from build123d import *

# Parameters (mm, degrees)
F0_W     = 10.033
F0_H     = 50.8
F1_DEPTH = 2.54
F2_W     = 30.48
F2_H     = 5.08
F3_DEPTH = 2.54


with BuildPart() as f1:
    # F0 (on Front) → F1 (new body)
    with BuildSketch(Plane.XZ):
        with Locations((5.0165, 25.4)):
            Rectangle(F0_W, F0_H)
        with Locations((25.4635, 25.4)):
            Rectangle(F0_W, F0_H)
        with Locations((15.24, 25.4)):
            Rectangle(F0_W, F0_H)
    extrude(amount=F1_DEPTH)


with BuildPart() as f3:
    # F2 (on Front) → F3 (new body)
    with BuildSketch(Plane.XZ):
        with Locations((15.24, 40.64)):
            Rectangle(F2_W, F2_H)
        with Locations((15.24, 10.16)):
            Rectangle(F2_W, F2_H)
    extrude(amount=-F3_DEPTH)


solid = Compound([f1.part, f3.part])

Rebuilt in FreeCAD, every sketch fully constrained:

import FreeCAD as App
import Part
import Sketcher
Q = App.Units.Quantity


def add_polygon(sketch, points):
    """Adds a closed chain of lines whose ends are joined by coincident constraints."""
    first, n = sketch.GeometryCount, len(points)
    for a, b in zip(points, points[1:] + points[:1]):
        sketch.addGeometry(Part.LineSegment(App.Vector(*a, 0), App.Vector(*b, 0)), False)
    for i in range(n):
        sketch.addConstraint(Sketcher.Constraint("Coincident", first + i, 2, first + (i + 1) % n, 1))

doc = App.newDocument("Part")
body = doc.addObject("PartDesign::Body", "Body")
body.AllowCompound = True

sketch1 = doc.addObject("Sketcher::SketchObject", "Sketch")
body.addObject(sketch1)
sketch1.AttachmentSupport = (doc.XZ_Plane, [""])
sketch1.MapMode = "FlatFace"
add_polygon(sketch1, [(0, 51), (0, 0), (10, 0), (10, 51)])
add_polygon(sketch1, [(20, 51), (20, 0), (30, 0), (30, 51)])
add_polygon(sketch1, [(10, 51), (10, 0), (20, 0), (20, 51)])
sketch1.addConstraint(Sketcher.Constraint("Vertical", 0))
sketch1.addConstraint(Sketcher.Constraint("Horizontal", 1))
sketch1.addConstraint(Sketcher.Constraint("Vertical", 2))
sketch1.addConstraint(Sketcher.Constraint("Horizontal", 3))
sketch1.addConstraint(Sketcher.Constraint("Vertical", 4))
sketch1.addConstraint(Sketcher.Constraint("Horizontal", 5))
sketch1.addConstraint(Sketcher.Constraint("Vertical", 6))
sketch1.addConstraint(Sketcher.Constraint("Horizontal", 7))
sketch1.addConstraint(Sketcher.Constraint("Vertical", 8))
sketch1.addConstraint(Sketcher.Constraint("Horizontal", 9))
sketch1.addConstraint(Sketcher.Constraint("Vertical", 10))
sketch1.addConstraint(Sketcher.Constraint("Horizontal", 11))
sketch1.addConstraint(Sketcher.Constraint("Coincident", 0, 2, -1, 1))
sketch1.addConstraint(Sketcher.Constraint("PointOnObject", 4, 2, -1))
sketch1.addConstraint(Sketcher.Constraint("PointOnObject", 8, 2, -1))
sketch1.addConstraint(Sketcher.Constraint("Horizontal", 3, 2, 6, 2))
sketch1.addConstraint(Sketcher.Constraint("Horizontal", 7, 2, 10, 2))
sketch1.addConstraint(Sketcher.Constraint("Equal", 3, 5))
sketch1.addConstraint(Sketcher.Constraint("Equal", 7, 9))
sketch1.addConstraint(Sketcher.Constraint("DistanceY", 0, 2, 0, 1, Q("2 in")))
sketch1.addConstraint(Sketcher.Constraint("DistanceX", -1, 1, 5, 2, Q("1.2 in")))
sketch1.addConstraint(Sketcher.Constraint("DistanceX", 1, 1, 1, 2, Q("0.395 in")))
sketch1.addConstraint(Sketcher.Constraint("DistanceX", -1, 1, 8, 2, Q("0.4025 in")))
pad1 = doc.addObject("PartDesign::Pad", "Pad")
body.addObject(pad1)
pad1.Profile = sketch1
pad1.Length = Q("0.1 in")
body2 = doc.addObject("PartDesign::Body", "Body001")
body2.AllowCompound = True

sketch2 = doc.addObject("Sketcher::SketchObject", "Sketch001")
body2.addObject(sketch2)
sketch2.AttachmentSupport = (doc.getObject("XZ_Plane001"), [""])
sketch2.MapMode = "FlatFace"
add_polygon(sketch2, [(0, 43), (0, 38), (30, 38), (30, 43)])
add_polygon(sketch2, [(0, 13), (0, 8), (30, 8), (30, 13)])
sketch2.addConstraint(Sketcher.Constraint("Vertical", 0))
sketch2.addConstraint(Sketcher.Constraint("Horizontal", 1))
sketch2.addConstraint(Sketcher.Constraint("Vertical", 2))
sketch2.addConstraint(Sketcher.Constraint("Horizontal", 3))
sketch2.addConstraint(Sketcher.Constraint("Vertical", 4))
sketch2.addConstraint(Sketcher.Constraint("Horizontal", 5))
sketch2.addConstraint(Sketcher.Constraint("Vertical", 6))
sketch2.addConstraint(Sketcher.Constraint("Horizontal", 7))
sketch2.addConstraint(Sketcher.Constraint("PointOnObject", 0, 2, -2))
sketch2.addConstraint(Sketcher.Constraint("PointOnObject", 4, 2, -2))
sketch2.addConstraint(Sketcher.Constraint("Vertical", 2, 2, 5, 2))
sketch2.addConstraint(Sketcher.Constraint("Equal", 2, 4))
sketch2.addConstraint(Sketcher.Constraint("DistanceX", 1, 1, 1, 2, Q("1.2 in")))
sketch2.addConstraint(Sketcher.Constraint("DistanceY", 0, 2, 0, 1, Q("0.2 in")))
sketch2.addConstraint(Sketcher.Constraint("DistanceY", 6, 2, 1, 2, Q("1 in")))
sketch2.addConstraint(Sketcher.Constraint("DistanceY", -1, 1, 0, 2, Q("1.5 in")))
pad2 = doc.addObject("PartDesign::Pad", "Pad001")
body2.addObject(pad2)
pad2.Profile = sketch2
pad2.Length = Q("0.1 in")
pad2.Reversed = True

doc.recompute()
